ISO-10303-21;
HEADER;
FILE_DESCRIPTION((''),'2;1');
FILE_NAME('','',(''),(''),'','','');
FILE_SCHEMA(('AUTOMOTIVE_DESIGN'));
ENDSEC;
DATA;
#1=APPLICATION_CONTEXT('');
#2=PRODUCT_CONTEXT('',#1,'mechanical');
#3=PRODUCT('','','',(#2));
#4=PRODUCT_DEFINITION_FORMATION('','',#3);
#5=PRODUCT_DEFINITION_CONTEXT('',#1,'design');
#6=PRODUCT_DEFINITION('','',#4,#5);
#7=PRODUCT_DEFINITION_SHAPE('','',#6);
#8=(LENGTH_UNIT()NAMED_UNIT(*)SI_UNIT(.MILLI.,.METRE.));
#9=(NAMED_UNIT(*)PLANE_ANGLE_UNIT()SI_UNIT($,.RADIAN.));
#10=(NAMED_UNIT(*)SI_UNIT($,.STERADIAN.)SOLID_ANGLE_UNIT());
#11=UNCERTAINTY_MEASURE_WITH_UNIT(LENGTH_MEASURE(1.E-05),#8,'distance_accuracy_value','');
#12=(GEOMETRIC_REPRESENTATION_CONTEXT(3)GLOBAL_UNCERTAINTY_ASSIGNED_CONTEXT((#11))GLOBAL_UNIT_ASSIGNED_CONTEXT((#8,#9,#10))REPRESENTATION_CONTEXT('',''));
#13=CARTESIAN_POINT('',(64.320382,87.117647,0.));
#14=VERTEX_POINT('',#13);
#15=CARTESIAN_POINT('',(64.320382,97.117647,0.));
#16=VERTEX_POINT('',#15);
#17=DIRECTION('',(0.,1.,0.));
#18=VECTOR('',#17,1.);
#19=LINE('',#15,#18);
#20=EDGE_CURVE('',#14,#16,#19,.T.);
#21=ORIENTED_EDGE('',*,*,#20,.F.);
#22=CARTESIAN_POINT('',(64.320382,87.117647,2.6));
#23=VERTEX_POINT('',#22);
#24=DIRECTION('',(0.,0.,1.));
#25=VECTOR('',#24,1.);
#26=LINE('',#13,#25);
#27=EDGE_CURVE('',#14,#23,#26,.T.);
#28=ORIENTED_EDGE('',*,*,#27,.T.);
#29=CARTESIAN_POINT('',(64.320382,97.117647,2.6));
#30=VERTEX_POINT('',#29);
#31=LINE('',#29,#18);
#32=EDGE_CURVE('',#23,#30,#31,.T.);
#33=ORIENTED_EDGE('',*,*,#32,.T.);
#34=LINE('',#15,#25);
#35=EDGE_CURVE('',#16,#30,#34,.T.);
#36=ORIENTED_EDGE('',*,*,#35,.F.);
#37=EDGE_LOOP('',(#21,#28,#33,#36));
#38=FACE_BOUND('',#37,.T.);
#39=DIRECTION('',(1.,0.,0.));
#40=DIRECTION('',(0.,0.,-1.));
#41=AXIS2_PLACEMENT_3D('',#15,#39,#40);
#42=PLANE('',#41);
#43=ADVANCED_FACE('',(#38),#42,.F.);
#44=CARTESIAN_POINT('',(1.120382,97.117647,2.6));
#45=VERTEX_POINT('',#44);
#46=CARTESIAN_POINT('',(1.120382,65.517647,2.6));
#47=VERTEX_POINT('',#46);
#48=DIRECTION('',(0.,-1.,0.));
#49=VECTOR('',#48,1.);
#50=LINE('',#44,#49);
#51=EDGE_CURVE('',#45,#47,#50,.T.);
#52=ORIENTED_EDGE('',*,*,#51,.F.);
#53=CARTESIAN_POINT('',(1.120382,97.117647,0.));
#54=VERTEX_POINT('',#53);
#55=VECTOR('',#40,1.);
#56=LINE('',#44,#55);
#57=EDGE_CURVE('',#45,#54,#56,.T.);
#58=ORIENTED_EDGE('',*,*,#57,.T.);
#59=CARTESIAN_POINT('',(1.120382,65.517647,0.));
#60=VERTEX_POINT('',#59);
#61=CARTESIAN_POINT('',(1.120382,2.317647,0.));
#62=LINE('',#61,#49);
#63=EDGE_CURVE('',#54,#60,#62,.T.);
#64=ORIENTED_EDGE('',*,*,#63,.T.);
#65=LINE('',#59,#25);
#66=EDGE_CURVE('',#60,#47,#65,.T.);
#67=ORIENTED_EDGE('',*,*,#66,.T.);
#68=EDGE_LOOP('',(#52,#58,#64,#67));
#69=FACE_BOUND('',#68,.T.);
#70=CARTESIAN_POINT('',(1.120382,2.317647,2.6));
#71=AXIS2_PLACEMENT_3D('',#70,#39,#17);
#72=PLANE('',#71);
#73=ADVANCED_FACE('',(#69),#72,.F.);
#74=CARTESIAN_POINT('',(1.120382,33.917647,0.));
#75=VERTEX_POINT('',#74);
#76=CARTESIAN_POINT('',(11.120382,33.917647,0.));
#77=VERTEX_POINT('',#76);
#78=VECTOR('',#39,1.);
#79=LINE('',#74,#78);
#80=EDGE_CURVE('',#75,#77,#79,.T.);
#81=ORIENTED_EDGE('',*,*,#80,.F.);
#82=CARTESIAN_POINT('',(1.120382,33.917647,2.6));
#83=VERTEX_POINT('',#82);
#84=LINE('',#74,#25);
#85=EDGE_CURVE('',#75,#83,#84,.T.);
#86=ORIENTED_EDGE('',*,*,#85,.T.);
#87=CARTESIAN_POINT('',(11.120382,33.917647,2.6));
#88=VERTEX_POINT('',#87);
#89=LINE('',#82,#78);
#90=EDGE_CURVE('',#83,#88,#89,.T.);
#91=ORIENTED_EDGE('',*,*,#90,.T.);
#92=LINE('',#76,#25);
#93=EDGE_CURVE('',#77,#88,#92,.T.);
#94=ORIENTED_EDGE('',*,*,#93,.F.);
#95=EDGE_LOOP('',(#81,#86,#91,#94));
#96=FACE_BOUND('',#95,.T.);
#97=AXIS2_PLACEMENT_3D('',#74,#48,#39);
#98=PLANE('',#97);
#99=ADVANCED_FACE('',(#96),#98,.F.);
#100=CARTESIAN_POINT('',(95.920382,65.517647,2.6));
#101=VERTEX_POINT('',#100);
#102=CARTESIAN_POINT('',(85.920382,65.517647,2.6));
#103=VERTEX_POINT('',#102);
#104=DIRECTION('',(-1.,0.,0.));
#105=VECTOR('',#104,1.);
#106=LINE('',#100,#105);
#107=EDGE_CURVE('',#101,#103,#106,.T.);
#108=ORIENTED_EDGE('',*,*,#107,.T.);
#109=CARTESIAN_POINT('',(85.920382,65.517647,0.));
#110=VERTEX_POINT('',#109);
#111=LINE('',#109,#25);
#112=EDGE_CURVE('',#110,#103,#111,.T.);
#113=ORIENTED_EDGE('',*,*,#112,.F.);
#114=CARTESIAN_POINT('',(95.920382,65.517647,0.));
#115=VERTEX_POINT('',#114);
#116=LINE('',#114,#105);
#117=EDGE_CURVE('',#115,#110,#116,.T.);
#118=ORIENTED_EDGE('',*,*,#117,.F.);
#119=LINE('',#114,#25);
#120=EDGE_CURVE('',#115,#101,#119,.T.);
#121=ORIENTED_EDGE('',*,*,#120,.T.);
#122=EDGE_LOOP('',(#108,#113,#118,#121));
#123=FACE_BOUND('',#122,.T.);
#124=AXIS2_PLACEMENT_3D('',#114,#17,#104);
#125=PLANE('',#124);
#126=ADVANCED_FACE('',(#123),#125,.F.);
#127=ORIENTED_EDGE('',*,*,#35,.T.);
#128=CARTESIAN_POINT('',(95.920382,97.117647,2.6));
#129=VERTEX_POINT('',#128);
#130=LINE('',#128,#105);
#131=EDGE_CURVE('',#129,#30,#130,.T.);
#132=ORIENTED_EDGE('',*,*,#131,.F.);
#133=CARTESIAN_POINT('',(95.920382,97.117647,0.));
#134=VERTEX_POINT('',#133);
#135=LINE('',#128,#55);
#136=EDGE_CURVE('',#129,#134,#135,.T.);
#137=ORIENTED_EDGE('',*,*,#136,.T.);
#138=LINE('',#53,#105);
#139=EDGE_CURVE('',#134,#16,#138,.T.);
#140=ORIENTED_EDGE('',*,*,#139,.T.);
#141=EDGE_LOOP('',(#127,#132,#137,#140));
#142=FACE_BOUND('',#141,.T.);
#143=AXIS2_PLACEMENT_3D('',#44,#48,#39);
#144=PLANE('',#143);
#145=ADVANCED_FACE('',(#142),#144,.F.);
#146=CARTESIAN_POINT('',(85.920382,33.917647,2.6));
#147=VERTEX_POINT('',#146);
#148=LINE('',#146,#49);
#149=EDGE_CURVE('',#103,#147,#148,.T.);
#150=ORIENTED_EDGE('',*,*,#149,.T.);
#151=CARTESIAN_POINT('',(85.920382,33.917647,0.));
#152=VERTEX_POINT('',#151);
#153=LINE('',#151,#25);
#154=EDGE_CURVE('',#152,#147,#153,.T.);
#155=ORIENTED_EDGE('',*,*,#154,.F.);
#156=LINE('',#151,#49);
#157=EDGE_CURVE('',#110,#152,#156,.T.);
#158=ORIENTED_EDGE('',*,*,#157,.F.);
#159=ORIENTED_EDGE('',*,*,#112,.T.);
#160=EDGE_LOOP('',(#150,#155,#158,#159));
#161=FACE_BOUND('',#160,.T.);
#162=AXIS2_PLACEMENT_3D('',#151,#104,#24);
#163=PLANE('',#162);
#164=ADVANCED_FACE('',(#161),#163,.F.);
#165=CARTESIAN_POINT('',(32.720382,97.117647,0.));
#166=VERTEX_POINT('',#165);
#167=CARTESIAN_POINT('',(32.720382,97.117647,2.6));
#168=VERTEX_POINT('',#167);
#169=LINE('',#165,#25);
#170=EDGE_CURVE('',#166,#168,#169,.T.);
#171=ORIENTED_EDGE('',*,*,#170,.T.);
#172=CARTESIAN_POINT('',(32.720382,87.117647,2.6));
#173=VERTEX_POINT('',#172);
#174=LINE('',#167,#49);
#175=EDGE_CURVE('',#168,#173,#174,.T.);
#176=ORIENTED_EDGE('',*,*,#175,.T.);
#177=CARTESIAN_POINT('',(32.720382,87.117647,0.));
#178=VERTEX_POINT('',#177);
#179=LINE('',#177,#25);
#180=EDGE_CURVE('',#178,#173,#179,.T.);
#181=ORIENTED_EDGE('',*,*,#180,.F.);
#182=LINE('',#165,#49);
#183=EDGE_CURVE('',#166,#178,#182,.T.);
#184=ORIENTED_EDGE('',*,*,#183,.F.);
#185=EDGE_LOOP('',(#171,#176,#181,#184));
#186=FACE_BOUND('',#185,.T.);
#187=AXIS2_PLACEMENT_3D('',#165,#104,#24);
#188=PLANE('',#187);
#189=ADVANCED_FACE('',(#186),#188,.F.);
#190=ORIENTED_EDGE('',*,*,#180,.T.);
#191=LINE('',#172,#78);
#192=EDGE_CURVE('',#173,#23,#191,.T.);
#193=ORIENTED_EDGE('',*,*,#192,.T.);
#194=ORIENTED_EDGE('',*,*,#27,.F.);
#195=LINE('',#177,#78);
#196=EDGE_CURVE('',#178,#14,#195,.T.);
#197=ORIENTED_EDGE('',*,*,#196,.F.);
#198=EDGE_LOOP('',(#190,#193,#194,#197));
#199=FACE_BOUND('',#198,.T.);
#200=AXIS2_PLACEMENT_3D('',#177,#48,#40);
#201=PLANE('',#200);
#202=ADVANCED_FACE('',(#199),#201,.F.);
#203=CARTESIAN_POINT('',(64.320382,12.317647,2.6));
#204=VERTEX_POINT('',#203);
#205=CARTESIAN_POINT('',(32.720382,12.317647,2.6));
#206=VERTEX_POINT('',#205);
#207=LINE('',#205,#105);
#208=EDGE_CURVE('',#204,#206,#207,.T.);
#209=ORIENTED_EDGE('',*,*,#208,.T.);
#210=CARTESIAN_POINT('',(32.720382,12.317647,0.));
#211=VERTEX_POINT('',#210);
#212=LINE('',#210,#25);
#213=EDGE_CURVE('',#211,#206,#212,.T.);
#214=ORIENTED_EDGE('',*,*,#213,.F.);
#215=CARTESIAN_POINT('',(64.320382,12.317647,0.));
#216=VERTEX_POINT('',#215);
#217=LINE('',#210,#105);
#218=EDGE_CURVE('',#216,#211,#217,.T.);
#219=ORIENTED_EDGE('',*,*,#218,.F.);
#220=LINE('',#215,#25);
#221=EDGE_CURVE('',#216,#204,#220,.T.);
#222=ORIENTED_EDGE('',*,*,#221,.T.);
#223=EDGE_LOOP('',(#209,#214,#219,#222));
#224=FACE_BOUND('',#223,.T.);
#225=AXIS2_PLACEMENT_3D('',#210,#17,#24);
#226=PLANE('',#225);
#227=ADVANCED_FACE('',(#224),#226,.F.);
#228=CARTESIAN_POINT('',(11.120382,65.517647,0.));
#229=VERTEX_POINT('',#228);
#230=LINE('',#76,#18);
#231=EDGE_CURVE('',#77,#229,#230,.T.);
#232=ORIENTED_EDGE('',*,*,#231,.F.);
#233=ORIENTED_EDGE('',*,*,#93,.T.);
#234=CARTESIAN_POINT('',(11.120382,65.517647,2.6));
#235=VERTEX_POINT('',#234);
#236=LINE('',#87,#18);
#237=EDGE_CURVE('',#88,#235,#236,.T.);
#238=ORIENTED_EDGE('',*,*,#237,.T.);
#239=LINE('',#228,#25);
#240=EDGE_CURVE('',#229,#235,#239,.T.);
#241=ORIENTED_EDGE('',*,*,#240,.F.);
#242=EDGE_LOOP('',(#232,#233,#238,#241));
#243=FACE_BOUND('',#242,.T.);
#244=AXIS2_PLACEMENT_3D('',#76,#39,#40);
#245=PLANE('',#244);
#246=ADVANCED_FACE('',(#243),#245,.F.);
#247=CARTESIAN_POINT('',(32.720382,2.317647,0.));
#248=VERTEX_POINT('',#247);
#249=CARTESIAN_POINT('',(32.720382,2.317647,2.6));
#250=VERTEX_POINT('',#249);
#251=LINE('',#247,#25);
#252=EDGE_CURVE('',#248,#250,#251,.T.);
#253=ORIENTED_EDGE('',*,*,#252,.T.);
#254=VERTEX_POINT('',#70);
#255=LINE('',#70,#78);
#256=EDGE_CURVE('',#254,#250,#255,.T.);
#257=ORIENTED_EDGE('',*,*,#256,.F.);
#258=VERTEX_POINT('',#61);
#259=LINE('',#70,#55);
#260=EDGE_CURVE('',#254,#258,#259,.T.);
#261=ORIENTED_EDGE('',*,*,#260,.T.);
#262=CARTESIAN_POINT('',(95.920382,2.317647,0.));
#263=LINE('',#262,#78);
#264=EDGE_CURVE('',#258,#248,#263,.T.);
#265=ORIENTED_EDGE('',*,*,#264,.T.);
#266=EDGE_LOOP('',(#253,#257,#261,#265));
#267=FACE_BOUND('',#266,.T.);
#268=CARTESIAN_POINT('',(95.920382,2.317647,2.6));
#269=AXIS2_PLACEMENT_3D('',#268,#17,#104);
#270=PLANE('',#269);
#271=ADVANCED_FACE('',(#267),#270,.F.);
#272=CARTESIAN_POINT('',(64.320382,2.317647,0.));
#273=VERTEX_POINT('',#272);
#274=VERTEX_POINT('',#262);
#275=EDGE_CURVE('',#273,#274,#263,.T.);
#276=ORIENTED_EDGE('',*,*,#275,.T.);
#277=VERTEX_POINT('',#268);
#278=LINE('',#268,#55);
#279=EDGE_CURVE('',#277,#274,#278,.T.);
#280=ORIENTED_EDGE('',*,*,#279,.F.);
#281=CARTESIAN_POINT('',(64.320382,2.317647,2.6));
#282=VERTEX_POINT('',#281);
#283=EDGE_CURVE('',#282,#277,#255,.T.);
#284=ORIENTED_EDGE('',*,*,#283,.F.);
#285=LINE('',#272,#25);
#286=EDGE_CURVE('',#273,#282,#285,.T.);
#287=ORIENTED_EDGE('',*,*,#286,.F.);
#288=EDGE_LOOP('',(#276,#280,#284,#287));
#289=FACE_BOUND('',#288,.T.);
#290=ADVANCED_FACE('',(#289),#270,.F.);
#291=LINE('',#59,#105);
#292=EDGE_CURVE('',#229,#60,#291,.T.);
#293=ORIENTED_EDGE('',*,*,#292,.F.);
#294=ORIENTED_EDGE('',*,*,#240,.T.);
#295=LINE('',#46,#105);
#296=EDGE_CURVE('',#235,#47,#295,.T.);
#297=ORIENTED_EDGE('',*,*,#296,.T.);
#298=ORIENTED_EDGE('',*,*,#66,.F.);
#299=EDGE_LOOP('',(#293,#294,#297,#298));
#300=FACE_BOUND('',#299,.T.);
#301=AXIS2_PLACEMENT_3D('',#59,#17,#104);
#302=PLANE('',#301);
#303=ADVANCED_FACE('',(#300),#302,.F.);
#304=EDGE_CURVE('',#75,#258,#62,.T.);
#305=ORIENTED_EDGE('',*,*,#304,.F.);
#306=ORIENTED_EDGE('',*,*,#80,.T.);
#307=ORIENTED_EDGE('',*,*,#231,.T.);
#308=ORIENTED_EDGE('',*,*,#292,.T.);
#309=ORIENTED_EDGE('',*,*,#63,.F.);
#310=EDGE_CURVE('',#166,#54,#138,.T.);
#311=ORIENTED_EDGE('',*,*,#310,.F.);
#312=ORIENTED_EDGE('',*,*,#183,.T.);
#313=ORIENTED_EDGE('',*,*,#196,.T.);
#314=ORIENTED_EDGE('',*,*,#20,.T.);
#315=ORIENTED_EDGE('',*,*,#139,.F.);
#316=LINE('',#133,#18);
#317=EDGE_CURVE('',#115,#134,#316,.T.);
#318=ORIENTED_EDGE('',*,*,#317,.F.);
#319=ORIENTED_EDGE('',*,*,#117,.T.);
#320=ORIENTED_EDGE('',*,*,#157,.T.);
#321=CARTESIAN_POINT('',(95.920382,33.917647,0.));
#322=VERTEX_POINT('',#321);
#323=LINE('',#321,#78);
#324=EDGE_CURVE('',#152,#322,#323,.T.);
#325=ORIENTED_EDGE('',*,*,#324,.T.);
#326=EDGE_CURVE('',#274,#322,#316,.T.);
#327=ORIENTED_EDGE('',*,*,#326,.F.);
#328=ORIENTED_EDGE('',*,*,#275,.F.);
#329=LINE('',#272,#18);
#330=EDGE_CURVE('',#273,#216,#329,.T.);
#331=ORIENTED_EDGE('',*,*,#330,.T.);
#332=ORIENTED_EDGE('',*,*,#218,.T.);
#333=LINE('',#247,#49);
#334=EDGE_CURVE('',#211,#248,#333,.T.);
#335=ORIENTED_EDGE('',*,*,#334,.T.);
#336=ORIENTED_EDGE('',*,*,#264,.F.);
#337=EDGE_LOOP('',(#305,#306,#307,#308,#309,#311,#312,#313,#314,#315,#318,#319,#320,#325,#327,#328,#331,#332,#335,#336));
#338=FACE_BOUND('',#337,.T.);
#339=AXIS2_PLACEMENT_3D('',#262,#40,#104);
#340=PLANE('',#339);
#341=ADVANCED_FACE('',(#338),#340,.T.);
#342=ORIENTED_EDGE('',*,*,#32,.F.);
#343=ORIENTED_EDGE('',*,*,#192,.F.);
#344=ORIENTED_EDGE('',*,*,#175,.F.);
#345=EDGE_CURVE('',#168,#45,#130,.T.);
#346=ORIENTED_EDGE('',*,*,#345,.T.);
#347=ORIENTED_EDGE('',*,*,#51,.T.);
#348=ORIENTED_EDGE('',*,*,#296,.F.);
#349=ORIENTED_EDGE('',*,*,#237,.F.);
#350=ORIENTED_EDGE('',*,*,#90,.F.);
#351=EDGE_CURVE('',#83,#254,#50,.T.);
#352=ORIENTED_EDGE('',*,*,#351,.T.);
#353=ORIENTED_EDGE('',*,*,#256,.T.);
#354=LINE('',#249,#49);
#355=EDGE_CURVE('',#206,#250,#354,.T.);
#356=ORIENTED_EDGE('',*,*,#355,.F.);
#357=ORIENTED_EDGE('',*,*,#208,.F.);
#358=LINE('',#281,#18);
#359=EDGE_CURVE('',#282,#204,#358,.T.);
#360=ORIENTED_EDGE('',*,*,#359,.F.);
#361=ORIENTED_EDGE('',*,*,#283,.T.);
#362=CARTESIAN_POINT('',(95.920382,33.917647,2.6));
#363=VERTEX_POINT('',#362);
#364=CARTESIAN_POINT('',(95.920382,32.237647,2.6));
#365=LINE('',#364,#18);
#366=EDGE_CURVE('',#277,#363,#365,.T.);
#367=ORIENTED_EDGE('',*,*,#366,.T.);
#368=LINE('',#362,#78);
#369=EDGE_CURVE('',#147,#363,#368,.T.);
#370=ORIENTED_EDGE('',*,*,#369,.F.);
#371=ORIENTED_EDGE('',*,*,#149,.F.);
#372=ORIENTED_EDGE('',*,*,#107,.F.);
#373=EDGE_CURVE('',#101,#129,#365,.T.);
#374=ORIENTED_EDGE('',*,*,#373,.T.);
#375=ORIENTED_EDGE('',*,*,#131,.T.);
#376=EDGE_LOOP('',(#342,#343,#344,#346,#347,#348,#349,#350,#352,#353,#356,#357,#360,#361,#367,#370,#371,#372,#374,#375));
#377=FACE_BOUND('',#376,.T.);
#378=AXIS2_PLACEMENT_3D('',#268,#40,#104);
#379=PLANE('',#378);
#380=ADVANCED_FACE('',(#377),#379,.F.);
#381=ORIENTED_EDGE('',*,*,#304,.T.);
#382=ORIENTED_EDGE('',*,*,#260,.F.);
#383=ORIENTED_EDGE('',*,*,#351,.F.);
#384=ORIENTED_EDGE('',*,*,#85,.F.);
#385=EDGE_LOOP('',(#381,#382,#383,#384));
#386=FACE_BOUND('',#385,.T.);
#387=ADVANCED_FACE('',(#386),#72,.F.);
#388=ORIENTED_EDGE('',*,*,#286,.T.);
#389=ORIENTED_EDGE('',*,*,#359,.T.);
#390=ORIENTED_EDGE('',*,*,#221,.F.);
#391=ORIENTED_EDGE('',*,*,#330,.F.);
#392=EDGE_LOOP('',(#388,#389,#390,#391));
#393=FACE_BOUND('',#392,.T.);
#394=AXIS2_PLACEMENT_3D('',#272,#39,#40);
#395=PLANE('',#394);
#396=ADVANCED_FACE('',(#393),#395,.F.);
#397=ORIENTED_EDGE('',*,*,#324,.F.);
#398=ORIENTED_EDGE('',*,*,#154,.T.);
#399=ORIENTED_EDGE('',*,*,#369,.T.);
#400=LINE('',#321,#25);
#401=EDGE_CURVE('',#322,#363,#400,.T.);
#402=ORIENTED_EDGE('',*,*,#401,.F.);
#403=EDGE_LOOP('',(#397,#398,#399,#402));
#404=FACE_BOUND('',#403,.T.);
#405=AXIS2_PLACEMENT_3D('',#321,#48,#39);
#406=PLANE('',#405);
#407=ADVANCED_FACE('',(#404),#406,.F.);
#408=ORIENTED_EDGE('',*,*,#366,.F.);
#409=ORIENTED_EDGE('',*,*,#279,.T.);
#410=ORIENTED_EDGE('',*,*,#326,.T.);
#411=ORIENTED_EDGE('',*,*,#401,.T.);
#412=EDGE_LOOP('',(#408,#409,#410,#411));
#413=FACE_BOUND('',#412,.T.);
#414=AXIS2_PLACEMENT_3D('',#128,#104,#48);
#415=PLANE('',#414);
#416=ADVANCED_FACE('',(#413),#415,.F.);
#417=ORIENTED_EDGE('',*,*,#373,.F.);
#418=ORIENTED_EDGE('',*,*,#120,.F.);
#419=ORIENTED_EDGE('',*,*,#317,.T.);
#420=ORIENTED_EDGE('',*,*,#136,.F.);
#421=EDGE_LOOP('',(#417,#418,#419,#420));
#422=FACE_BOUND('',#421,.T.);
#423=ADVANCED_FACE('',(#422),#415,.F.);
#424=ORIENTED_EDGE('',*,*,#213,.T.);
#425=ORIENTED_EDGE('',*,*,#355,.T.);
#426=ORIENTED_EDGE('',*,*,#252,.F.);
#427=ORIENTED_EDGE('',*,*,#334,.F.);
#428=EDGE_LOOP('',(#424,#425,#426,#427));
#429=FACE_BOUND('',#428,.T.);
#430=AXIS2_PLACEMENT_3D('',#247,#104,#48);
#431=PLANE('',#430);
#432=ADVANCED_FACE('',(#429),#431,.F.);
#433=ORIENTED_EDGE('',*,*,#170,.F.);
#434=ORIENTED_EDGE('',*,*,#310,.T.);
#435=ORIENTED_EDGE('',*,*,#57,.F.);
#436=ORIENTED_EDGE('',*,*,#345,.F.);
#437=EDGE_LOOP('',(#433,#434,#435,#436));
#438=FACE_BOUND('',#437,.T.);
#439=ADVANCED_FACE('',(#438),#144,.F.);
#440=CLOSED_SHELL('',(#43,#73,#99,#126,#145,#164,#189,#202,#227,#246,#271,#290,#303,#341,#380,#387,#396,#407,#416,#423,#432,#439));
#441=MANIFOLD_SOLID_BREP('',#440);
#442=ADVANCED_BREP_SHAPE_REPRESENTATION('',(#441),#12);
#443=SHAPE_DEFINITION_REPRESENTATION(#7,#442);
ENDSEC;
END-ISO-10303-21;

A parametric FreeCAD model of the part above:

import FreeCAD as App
import Part
import Sketcher


def add_polygon(sketch, points):
    """Adds a closed chain of lines whose ends are joined by coincident constraints."""
    first, n = sketch.GeometryCount, len(points)
    for a, b in zip(points, points[1:] + points[:1]):
        sketch.addGeometry(Part.LineSegment(App.Vector(*a, 0), App.Vector(*b, 0)), False)
    for i in range(n):
        sketch.addConstraint(Sketcher.Constraint("Coincident", first + i, 2, first + (i + 1) % n, 1))

doc = App.newDocument("Part")
params = doc.addObject("Spreadsheet::Sheet", "Params")
for row, (alias, value) in enumerate([
    ("sketch1_width", "94.8 mm"),
    ("pad1_length", "2.6 mm"),
    ("sketch2_width", "10 mm"),
    ("sketch2_width2", "31.6 mm"),
], start=1):
    params.set(f"A{row}", alias)
    params.set(f"B{row}", "=" + value)
    params.setAlias(f"B{row}", alias)

body = doc.addObject("PartDesign::Body", "Body")

# Sketch on XY plane
sketch1 = body.newObject("Sketcher::SketchObject", "Sketch")
sketch1.AttachmentSupport = (doc.getObject("XY_Plane"), [""])
sketch1.MapMode = "FlatFace"
add_polygon(sketch1, [(1.120382, 2.317647), (95.920382, 2.317647), (95.920382, 97.117647), (1.120382, 97.117647)])  # lines 0-3
sketch1.addConstraint(Sketcher.Constraint("Horizontal", 0))
sketch1.addConstraint(Sketcher.Constraint("Vertical", 1))
sketch1.addConstraint(Sketcher.Constraint("Horizontal", 2))
sketch1.addConstraint(Sketcher.Constraint("Vertical", 3))
sketch1.addConstraint(Sketcher.Constraint("Equal", 2, 1))
sketch1.addConstraint(Sketcher.Constraint("DistanceX", 0, 1, 0, 2, 94.8))
sketch1.addConstraint(Sketcher.Constraint("DistanceX", -1, 1, 0, 2, 95.920382))
sketch1.addConstraint(Sketcher.Constraint("DistanceY", -1, 1, 0, 2, 2.317647))
sketch1.setExpression("Constraints[9]", "Params.sketch1_width")
pad1 = body.newObject("PartDesign::Pad", "Pad")
pad1.Profile = sketch1
pad1.setExpression("Length", "Params.pad1_length")

# Sketch on XY plane
sketch2 = body.newObject("Sketcher::SketchObject", "Sketch001")
sketch2.AttachmentSupport = (doc.getObject("XY_Plane"), [""])
sketch2.MapMode = "FlatFace"
sketch2.AttachmentOffset = App.Placement(App.Vector(0, 0, 2.6), App.Rotation())
add_polygon(sketch2, [(1.120382, 65.517647), (1.120382, 33.917647), (11.120382, 33.917647), (11.120382, 65.517647)])  # lines 0-3
add_polygon(sketch2, [(85.920382, 65.517647), (85.920382, 33.917647), (95.920382, 33.917647), (95.920382, 65.517647)])  # lines 4-7
add_polygon(sketch2, [(32.720382, 97.117647), (32.720382, 87.117647), (64.320382, 87.117647), (64.320382, 97.117647)])  # lines 8-11
add_polygon(sketch2, [(32.720382, 12.317647), (32.720382, 2.317647), (64.320382, 2.317647), (64.320382, 12.317647)])  # lines 12-15
sketch2.addConstraint(Sketcher.Constraint("Vertical", 0))
sketch2.addConstraint(Sketcher.Constraint("Horizontal", 1))
sketch2.addConstraint(Sketcher.Constraint("Vertical", 2))
sketch2.addConstraint(Sketcher.Constraint("Horizontal", 3))
sketch2.addConstraint(Sketcher.Constraint("Vertical", 4))
sketch2.addConstraint(Sketcher.Constraint("Horizontal", 5))
sketch2.addConstraint(Sketcher.Constraint("Vertical", 6))
sketch2.addConstraint(Sketcher.Constraint("Horizontal", 7))
sketch2.addConstraint(Sketcher.Constraint("Vertical", 8))
sketch2.addConstraint(Sketcher.Constraint("Horizontal", 9))
sketch2.addConstraint(Sketcher.Constraint("Vertical", 10))
sketch2.addConstraint(Sketcher.Constraint("Horizontal", 11))
sketch2.addConstraint(Sketcher.Constraint("Vertical", 12))
sketch2.addConstraint(Sketcher.Constraint("Horizontal", 13))
sketch2.addConstraint(Sketcher.Constraint("Vertical", 14))
sketch2.addConstraint(Sketcher.Constraint("Horizontal", 15))
sketch2.addConstraint(Sketcher.Constraint("Horizontal", 1, 2, 4, 2))
sketch2.addConstraint(Sketcher.Constraint("Horizontal", 3, 2, 6, 2))
sketch2.addConstraint(Sketcher.Constraint("Vertical", 11, 2, 12, 2))
sketch2.addConstraint(Sketcher.Constraint("Vertical", 10, 2, 13, 2))
sketch2.addConstraint(Sketcher.Constraint("Equal", 3, 5))
sketch2.addConstraint(Sketcher.Constraint("Equal", 15, 0))
sketch2.addConstraint(Sketcher.Constraint("Equal", 7, 8))
sketch2.addConstraint(Sketcher.Constraint("Equal", 10, 12))
sketch2.addConstraint(Sketcher.Constraint("DistanceX", 1, 1, 1, 2, 10.0))
sketch2.addConstraint(Sketcher.Constraint("DistanceX", 9, 1, 9, 2, 31.6))
sketch2.addConstraint(Sketcher.Constraint("DistanceX", 1, 2, 4, 2, 74.8))
sketch2.addConstraint(Sketcher.Constraint("DistanceX", 2, 2, 8, 2, 21.6))
sketch2.addConstraint(Sketcher.Constraint("DistanceY", 2, 2, 8, 2, 21.6))
sketch2.addConstraint(Sketcher.Constraint("DistanceY", 12, 2, 1, 2, 31.6))
sketch2.addConstraint(Sketcher.Constraint("DistanceX", -1, 1, 0, 2, 1.120382))
sketch2.addConstraint(Sketcher.Constraint("DistanceY", -1, 1, 0, 2, 33.917647))
sketch2.setExpression("Constraints[40]", "Params.sketch2_width")
sketch2.setExpression("Constraints[41]", "Params.sketch2_width2")
pocket1 = body.newObject("PartDesign::Pocket", "Pocket")
pocket1.Profile = sketch2
pocket1.Type = "ThroughAll"

doc.recompute()
